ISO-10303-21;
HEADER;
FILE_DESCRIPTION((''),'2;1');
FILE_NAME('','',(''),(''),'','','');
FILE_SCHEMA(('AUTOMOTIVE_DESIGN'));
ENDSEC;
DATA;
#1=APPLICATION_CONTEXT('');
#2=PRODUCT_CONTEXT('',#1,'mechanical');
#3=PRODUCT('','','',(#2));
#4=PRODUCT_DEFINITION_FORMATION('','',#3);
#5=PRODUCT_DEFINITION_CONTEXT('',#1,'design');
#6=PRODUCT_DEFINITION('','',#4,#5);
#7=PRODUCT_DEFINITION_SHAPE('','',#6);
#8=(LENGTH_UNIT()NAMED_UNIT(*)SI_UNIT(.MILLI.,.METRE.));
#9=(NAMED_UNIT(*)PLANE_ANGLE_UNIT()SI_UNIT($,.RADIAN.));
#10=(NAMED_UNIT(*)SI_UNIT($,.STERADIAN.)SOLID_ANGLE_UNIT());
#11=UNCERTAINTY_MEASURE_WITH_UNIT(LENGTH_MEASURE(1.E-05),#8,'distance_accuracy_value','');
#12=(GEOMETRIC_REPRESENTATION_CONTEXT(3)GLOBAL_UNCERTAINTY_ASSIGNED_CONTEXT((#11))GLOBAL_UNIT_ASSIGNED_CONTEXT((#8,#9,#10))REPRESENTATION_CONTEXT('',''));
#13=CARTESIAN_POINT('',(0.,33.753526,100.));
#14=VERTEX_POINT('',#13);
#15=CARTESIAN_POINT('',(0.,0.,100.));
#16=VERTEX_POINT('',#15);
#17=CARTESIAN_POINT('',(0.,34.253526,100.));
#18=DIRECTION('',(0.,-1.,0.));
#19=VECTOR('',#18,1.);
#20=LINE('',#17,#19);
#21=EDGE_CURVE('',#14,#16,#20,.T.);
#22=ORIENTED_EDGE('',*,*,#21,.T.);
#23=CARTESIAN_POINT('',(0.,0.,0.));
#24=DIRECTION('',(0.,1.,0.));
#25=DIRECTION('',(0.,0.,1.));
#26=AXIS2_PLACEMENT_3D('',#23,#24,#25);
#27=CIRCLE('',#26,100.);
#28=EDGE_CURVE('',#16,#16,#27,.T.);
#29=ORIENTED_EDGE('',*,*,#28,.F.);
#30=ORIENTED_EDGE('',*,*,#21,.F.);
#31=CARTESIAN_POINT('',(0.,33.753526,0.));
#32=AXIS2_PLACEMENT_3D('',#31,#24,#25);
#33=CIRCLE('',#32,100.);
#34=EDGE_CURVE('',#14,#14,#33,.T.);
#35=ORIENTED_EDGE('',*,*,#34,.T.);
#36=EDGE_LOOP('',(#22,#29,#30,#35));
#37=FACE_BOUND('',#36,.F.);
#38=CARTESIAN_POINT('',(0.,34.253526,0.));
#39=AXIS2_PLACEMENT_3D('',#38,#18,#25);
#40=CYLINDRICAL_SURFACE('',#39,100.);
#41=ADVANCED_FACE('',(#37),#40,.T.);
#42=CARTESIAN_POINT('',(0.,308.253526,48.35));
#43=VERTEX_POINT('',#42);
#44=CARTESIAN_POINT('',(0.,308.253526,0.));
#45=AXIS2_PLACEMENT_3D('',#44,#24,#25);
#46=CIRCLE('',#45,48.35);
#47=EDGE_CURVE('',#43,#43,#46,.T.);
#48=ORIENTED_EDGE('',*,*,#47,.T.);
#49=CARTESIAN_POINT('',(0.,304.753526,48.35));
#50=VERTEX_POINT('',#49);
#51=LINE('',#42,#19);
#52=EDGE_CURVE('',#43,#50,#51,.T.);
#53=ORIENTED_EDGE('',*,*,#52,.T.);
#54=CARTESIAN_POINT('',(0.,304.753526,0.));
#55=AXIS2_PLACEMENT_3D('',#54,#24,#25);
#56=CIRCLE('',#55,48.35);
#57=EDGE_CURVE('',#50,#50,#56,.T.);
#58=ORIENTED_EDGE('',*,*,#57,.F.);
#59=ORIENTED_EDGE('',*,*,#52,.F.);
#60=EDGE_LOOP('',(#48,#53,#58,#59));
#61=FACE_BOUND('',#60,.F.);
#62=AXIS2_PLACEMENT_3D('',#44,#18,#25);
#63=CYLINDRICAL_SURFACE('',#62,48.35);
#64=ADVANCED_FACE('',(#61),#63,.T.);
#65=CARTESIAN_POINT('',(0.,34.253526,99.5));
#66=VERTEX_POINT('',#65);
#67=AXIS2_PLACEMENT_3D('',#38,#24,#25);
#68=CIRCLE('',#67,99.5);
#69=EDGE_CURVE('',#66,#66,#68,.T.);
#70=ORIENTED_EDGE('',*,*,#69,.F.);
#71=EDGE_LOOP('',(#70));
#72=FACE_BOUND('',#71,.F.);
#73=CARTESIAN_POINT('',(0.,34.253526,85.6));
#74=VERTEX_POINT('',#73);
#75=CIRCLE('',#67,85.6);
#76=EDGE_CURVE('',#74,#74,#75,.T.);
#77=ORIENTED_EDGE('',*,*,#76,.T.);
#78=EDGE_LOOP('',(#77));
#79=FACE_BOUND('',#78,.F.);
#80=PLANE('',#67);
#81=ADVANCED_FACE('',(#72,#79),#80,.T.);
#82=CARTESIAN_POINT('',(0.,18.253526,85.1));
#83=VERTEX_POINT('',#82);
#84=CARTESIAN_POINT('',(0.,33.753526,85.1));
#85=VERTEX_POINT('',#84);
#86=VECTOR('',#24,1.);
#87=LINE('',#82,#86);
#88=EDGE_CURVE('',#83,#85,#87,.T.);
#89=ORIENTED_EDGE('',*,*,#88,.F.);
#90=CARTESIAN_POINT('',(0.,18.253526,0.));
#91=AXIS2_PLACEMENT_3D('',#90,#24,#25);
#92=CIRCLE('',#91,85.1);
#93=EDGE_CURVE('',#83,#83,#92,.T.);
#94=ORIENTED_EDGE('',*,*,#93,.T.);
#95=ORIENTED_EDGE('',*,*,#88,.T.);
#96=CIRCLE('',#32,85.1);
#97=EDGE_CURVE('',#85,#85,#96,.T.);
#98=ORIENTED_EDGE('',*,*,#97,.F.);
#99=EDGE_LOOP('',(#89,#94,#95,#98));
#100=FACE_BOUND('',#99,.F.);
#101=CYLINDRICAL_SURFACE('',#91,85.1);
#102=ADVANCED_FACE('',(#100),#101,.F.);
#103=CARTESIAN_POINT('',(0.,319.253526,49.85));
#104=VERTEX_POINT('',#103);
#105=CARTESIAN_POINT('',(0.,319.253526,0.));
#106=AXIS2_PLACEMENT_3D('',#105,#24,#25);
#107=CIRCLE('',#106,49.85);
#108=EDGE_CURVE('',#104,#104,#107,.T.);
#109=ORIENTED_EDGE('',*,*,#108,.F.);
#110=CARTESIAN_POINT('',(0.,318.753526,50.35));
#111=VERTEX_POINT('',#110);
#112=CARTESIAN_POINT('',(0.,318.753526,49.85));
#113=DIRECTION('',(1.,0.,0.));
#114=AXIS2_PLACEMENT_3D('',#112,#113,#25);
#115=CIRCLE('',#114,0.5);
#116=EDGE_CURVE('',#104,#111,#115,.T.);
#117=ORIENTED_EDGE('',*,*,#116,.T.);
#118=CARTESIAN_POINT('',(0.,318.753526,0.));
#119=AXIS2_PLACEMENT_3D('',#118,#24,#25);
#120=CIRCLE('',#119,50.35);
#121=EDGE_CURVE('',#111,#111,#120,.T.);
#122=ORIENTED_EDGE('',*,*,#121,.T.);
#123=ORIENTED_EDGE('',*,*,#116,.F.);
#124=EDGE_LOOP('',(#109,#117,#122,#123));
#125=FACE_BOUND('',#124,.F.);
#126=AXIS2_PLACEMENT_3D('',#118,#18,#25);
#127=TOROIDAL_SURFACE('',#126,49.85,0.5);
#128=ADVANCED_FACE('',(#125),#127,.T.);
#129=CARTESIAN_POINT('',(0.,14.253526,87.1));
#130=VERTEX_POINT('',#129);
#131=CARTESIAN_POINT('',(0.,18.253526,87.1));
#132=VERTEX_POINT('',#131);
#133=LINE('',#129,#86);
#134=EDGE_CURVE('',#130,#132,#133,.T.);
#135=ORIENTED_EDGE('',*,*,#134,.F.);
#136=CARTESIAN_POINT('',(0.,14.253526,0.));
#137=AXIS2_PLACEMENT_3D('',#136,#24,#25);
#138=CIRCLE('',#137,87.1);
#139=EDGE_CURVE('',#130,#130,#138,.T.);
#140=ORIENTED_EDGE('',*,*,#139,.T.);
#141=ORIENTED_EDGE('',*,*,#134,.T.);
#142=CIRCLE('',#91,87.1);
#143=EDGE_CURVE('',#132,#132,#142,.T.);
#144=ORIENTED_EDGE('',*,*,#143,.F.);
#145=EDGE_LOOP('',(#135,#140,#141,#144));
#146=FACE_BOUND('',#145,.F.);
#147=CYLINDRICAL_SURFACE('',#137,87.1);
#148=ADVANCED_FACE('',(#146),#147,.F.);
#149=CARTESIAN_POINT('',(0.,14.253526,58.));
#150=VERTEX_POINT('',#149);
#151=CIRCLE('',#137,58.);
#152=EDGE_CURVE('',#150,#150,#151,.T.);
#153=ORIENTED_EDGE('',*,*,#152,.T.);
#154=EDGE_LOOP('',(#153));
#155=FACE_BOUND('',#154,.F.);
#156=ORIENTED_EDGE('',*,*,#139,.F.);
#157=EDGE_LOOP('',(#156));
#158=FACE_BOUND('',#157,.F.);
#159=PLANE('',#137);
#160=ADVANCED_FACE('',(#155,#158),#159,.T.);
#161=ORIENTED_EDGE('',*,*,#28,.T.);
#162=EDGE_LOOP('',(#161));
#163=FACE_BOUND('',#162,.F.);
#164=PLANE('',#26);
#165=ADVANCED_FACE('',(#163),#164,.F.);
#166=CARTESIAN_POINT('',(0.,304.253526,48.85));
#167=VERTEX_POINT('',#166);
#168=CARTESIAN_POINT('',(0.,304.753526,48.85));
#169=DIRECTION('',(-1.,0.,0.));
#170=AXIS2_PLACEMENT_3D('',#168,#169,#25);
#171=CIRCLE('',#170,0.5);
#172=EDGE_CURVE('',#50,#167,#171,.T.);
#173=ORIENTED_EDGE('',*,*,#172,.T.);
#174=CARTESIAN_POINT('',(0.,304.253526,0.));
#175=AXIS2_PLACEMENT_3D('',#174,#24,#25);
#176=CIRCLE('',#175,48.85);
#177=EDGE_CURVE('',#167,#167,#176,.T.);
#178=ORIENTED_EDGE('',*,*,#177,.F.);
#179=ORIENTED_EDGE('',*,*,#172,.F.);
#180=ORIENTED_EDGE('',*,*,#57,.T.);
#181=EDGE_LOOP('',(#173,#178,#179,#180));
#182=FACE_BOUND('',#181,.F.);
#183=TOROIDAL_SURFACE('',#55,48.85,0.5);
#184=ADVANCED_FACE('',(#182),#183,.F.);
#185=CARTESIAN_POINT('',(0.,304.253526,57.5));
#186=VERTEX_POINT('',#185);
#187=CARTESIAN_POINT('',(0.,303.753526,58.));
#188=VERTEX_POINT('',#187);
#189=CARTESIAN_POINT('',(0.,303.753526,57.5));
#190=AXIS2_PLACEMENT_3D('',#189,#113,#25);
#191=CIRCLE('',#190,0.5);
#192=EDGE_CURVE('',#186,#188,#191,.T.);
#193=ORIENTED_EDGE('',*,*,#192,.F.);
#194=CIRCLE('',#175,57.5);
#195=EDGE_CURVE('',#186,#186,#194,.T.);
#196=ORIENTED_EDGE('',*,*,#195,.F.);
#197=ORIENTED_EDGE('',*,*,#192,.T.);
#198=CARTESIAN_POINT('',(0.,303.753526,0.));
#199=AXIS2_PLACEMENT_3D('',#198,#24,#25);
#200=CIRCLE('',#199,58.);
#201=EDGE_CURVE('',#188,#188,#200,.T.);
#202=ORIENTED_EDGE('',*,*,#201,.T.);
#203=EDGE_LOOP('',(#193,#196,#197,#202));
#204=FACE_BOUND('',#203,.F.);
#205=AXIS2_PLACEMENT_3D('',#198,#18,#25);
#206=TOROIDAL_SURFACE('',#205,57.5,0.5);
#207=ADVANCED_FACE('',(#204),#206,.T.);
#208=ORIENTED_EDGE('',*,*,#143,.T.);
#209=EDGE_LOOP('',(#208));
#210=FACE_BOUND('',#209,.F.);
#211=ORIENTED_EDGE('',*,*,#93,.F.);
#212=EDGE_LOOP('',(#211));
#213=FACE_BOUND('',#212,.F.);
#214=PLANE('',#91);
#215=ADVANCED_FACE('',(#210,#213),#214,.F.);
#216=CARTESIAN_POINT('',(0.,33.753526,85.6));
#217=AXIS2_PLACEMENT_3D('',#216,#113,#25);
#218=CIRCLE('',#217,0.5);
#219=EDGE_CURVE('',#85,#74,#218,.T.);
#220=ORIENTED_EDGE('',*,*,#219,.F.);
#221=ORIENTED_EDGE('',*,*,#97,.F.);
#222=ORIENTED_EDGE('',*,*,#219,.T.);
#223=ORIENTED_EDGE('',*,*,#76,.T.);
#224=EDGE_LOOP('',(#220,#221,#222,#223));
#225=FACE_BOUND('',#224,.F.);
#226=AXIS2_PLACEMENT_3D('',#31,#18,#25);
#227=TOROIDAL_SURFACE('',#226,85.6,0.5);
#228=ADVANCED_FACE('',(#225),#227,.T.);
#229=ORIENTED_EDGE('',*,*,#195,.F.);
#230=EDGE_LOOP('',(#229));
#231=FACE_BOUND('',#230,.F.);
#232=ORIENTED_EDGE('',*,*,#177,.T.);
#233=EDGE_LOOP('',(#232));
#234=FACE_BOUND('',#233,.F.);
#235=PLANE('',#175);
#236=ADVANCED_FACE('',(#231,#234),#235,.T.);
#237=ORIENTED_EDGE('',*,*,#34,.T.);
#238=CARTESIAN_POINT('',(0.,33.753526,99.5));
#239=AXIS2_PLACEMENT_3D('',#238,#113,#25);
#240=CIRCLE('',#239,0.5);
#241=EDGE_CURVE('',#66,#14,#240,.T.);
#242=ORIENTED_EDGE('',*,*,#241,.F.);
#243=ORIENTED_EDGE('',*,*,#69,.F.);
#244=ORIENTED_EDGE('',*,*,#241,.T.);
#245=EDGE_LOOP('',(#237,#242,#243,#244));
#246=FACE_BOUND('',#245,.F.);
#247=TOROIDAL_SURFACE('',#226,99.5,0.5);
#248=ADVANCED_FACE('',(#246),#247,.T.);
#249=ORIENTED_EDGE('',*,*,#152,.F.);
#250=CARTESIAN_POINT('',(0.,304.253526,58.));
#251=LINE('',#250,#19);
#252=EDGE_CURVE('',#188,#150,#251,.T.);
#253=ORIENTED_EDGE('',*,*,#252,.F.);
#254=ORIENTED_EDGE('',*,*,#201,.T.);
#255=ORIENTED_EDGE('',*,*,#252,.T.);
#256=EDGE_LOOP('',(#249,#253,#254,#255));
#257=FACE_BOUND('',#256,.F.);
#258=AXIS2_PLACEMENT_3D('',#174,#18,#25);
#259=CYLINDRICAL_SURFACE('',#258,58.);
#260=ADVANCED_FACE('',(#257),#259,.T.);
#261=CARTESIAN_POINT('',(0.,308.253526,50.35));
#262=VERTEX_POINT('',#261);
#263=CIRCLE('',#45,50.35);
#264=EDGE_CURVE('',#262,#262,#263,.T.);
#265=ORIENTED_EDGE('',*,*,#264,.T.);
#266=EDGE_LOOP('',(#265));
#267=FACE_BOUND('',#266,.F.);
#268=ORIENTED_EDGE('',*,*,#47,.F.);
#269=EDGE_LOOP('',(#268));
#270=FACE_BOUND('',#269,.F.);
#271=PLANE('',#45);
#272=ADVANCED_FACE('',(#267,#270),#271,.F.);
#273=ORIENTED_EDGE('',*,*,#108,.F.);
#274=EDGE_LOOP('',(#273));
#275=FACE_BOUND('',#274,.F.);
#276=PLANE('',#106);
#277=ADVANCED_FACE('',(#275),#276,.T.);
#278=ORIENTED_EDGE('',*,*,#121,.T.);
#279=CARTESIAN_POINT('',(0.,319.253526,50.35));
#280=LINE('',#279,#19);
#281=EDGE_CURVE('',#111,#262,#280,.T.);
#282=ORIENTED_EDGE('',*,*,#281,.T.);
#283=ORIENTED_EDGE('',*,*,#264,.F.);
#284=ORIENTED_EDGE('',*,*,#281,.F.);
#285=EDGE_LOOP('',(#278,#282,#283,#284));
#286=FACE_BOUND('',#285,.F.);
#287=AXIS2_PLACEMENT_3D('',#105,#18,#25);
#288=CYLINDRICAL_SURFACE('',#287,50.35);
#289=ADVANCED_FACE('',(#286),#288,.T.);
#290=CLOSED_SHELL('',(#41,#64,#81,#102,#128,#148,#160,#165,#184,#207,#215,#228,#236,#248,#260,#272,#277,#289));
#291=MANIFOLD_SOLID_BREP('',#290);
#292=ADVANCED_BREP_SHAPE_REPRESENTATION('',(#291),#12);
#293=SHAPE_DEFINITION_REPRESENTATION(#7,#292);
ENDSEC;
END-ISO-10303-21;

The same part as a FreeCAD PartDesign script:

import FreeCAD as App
import Part
import Sketcher
Q = App.Units.Quantity


def edges_at(feature, points):
    """Names of the edges that pass closest to the given points."""
    edges = feature.Shape.Edges
    near = lambda p: min(range(len(edges)), key=lambda i: edges[i].distToShape(Part.Vertex(*p))[0])
    return sorted({f"Edge{near(p) + 1}" for p in points})

doc = App.newDocument("Part")
body = doc.addObject("PartDesign::Body", "Body")

# Sketch on YZ plane
sketch1 = body.newObject("Sketcher::SketchObject", "Sketch")
sketch1.AttachmentSupport = (doc.getObject("YZ_Plane"), [""])
sketch1.MapMode = "FlatFace"
sketch1.addGeometry([
    Part.LineSegment(App.Vector(0, 100, 0), App.Vector(0, 0, 0)),  # 0
    Part.LineSegment(App.Vector(0, 0, 0), App.Vector(319.3, 0, 0)),  # 1
    Part.LineSegment(App.Vector(319.3, 0, 0), App.Vector(319.3, 50.4, 0)),  # 2
    Part.LineSegment(App.Vector(319.3, 50.4, 0), App.Vector(308.3, 50.4, 0)),  # 3
    Part.LineSegment(App.Vector(308.3, 50.4, 0), App.Vector(308.3, 48.4, 0)),  # 4
    Part.LineSegment(App.Vector(308.3, 48.4, 0), App.Vector(304.3, 48.4, 0)),  # 5
    Part.LineSegment(App.Vector(304.3, 48.4, 0), App.Vector(304.3, 58, 0)),  # 6
    Part.LineSegment(App.Vector(304.3, 58, 0), App.Vector(14.3, 58, 0)),  # 7
    Part.LineSegment(App.Vector(14.3, 58, 0), App.Vector(14.3, 87.1, 0)),  # 8
    Part.LineSegment(App.Vector(14.3, 87.1, 0), App.Vector(18.3, 87.1, 0)),  # 9
    Part.LineSegment(App.Vector(18.3, 87.1, 0), App.Vector(18.3, 85.1, 0)),  # 10
    Part.LineSegment(App.Vector(18.3, 85.1, 0), App.Vector(34.3, 85.1, 0)),  # 11
    Part.LineSegment(App.Vector(34.3, 85.1, 0), App.Vector(34.3, 100, 0)),  # 12
    Part.LineSegment(App.Vector(34.3, 100, 0), App.Vector(0, 100, 0)),  # 13
], False)
sketch1.addConstraint([
    Sketcher.Constraint("Coincident", 0, 2, 1, 1),
    Sketcher.Constraint("Coincident", 1, 2, 2, 1),
    Sketcher.Constraint("Coincident", 2, 2, 3, 1),
    Sketcher.Constraint("Coincident", 3, 2, 4, 1),
    Sketcher.Constraint("Coincident", 4, 2, 5, 1),
    Sketcher.Constraint("Coincident", 5, 2, 6, 1),
    Sketcher.Constraint("Coincident", 6, 2, 7, 1),
    Sketcher.Constraint("Coincident", 7, 2, 8, 1),
    Sketcher.Constraint("Coincident", 8, 2, 9, 1),
    Sketcher.Constraint("Coincident", 9, 2, 10, 1),
    Sketcher.Constraint("Coincident", 10, 2, 11, 1),
    Sketcher.Constraint("Coincident", 11, 2, 12, 1),
    Sketcher.Constraint("Coincident", 12, 2, 13, 1),
    Sketcher.Constraint("Coincident", 13, 2, 0, 1),
    Sketcher.Constraint("Vertical", 0),
    Sketcher.Constraint("Horizontal", 1),
    Sketcher.Constraint("Vertical", 2),
    Sketcher.Constraint("Horizontal", 3),
    Sketcher.Constraint("Vertical", 4),
    Sketcher.Constraint("Horizontal", 5),
    Sketcher.Constraint("Vertical", 6),
    Sketcher.Constraint("Horizontal", 7),
    Sketcher.Constraint("Vertical", 8),
    Sketcher.Constraint("Horizontal", 9),
    Sketcher.Constraint("Vertical", 10),
    Sketcher.Constraint("Horizontal", 11),
    Sketcher.Constraint("Vertical", 12),
    Sketcher.Constraint("Horizontal", 13),
    Sketcher.Constraint("Coincident", 0, 2, -1, 1),
    Sketcher.Constraint("Equal", 5, 9),
    Sketcher.Constraint("Equal", 4, 10),
    Sketcher.Constraint("DistanceX", 3, 2, 3, 1, Q("11 mm")),
    Sketcher.Constraint("DistanceX", 5, 2, 5, 1, Q("4 mm")),
    Sketcher.Constraint("DistanceX", 7, 2, 7, 1, Q("290 mm")),
    Sketcher.Constraint("DistanceX", 11, 1, 11, 2, Q("16 mm")),
    Sketcher.Constraint("DistanceY", 0, 2, 0, 1, Q("100 mm")),
    Sketcher.Constraint("DistanceY", 4, 2, 4, 1, Q("2 mm")),
    Sketcher.Constraint("DistanceY", 8, 1, 8, 2, Q("29.1 mm")),
    Sketcher.Constraint("DistanceY", 12, 1, 12, 2, Q("14.9 mm")),
    Sketcher.Constraint("DistanceY", 2, 1, 2, 2, Q("50.35 mm")),
    Sketcher.Constraint("DistanceX", 1, 1, 1, 2, Q("319.253526 mm")),
])
revolution = body.newObject("PartDesign::Revolution", "Revolution")
revolution.Profile = sketch1
revolution.ReferenceAxis = (sketch1, ["H_Axis"])
revolution.Angle = 360
doc.recompute()

fillet = body.newObject("PartDesign::Fillet", "Fillet")
fillet.Base = (revolution, edges_at(revolution, [
    (0, 319.254, -50.35),
    (0, 304.254, -48.35),
    (0, 304.254, -58),
    (0, 34.254, -85.1),
    (0, 34.254, -100),
]))
fillet.Radius = 0.5

doc.recompute()
